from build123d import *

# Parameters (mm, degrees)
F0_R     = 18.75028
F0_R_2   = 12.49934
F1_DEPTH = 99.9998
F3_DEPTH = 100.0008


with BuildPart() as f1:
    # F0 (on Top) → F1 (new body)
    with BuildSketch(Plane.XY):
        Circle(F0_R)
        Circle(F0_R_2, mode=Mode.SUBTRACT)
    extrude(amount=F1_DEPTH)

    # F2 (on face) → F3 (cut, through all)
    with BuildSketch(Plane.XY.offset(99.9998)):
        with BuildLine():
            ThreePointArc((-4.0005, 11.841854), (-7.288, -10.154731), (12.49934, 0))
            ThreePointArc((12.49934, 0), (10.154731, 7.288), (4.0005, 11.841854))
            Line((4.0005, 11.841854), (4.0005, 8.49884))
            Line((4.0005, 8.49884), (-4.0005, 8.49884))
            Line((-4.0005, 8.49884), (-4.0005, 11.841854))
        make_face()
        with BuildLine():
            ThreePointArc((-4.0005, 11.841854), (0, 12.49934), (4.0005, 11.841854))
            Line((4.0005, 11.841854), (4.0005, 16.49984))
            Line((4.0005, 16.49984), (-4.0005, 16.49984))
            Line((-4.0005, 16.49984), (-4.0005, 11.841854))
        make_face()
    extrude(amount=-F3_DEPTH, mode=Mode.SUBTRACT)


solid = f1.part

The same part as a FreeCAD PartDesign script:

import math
import FreeCAD as App
import Part
import Sketcher
from FreeCAD import Vector
Q = App.Units.Quantity

doc = App.newDocument("Part")
body = doc.addObject("PartDesign::Body", "Body")

# Sketch on XY plane
sketch1 = body.newObject("Sketcher::SketchObject", "Sketch")
sketch1.AttachmentSupport = (doc.getObject("XY_Plane"), [""])
sketch1.MapMode = "FlatFace"
sketch1.addGeometry([
    Part.Circle(Vector(0, 0, 0), Vector(0, 0, 1), 19),
    Part.Circle(Vector(0, 0, 0), Vector(0, 0, 1), 12),
], False)
sketch1.addConstraint([
    Sketcher.Constraint("Coincident", 0, 3, -1, 1),
    Sketcher.Constraint("Coincident", 1, 3, -1, 1),
    Sketcher.Constraint("Diameter", 0, Q("1.4764 in")),
    Sketcher.Constraint("Diameter", 1, Q("0.9842 in")),
])
pad1 = body.newObject("PartDesign::Pad", "Pad")
pad1.Profile = sketch1
pad1.Length = Q("3.937 in")

# Sketch on XY plane
sketch2 = body.newObject("Sketcher::SketchObject", "Sketch001")
sketch2.AttachmentSupport = (doc.getObject("XY_Plane"), [""])
sketch2.MapMode = "FlatFace"
sketch2.AttachmentOffset = App.Placement(Vector(0, 0, 3.937 * 25.4), App.Rotation())
sketch2.addGeometry([
    Part.ArcOfCircle(Part.Circle(Vector(0, 0, 0), Vector(0, 0, 1), 12.5), math.radians(109), math.radians(360)),  # 0
    Part.ArcOfCircle(Part.Circle(Vector(0, 0, 0), Vector(0, 0, 1), 12.5), math.radians(0), math.radians(71)),  # 1
    Part.LineSegment(Vector(4, 11.8, 0), Vector(4, 8.5, 0)),  # 2
    Part.LineSegment(Vector(4, 8.5, 0), Vector(-4, 8.5, 0)),  # 3
    Part.LineSegment(Vector(-4, 8.5, 0), Vector(-4, 11.8, 0)),  # 4
    Part.ArcOfCircle(Part.Circle(Vector(0, 0, 0), Vector(0, 0, 1), 12.5), math.radians(71), math.radians(109)),  # 5
    Part.LineSegment(Vector(4, 11.8, 0), Vector(4, 16.5, 0)),  # 6
    Part.LineSegment(Vector(4, 16.5, 0), Vector(-4, 16.5, 0)),  # 7
    Part.LineSegment(Vector(-4, 16.5, 0), Vector(-4, 11.8, 0)),  # 8
], False)
sketch2.addConstraint([
    Sketcher.Constraint("Tangent", 0, 2, 1, 1),
    Sketcher.Constraint("Coincident", 1, 2, 2, 1),
    Sketcher.Constraint("Coincident", 2, 2, 3, 1),
    Sketcher.Constraint("Coincident", 3, 2, 4, 1),
    Sketcher.Constraint("Coincident", 4, 2, 0, 1),
    Sketcher.Constraint("Coincident", 5, 1, 6, 1),
    Sketcher.Constraint("Coincident", 6, 2, 7, 1),
    Sketcher.Constraint("Coincident", 7, 2, 8, 1),
    Sketcher.Constraint("Coincident", 8, 2, 5, 2),
    Sketcher.Constraint("Vertical", 2),
    Sketcher.Constraint("Horizontal", 3),
    Sketcher.Constraint("Vertical", 4),
    Sketcher.Constraint("Vertical", 6),
    Sketcher.Constraint("Horizontal", 7),
    Sketcher.Constraint("Vertical", 8),
    Sketcher.Constraint("Coincident", 0, 3, -1, 1),
    Sketcher.Constraint("Coincident", 5, 3, -1, 1),
    Sketcher.Constraint("Coincident", 5, 1, 1, 2),
    Sketcher.Constraint("Coincident", 8, 2, 4, 2),
    Sketcher.Constraint("PointOnObject", 0, 2, -1),
    Sketcher.Constraint("Horizontal", 1, 2, 4, 2),
    Sketcher.Constraint("Radius", 0, Q("0.4921 in")),
    Sketcher.Constraint("DistanceX", 3, 2, 3, 1, Q("0.315 in")),
    Sketcher.Constraint("DistanceY", 2, 2, 6, 2, Q("0.315 in")),
    Sketcher.Constraint("DistanceY", -1, 1, 2, 2, Q("0.3346 in")),
])
pocket1 = body.newObject("PartDesign::Pocket", "Pocket")
pocket1.Profile = sketch2
pocket1.Type = "ThroughAll"

doc.recompute()
